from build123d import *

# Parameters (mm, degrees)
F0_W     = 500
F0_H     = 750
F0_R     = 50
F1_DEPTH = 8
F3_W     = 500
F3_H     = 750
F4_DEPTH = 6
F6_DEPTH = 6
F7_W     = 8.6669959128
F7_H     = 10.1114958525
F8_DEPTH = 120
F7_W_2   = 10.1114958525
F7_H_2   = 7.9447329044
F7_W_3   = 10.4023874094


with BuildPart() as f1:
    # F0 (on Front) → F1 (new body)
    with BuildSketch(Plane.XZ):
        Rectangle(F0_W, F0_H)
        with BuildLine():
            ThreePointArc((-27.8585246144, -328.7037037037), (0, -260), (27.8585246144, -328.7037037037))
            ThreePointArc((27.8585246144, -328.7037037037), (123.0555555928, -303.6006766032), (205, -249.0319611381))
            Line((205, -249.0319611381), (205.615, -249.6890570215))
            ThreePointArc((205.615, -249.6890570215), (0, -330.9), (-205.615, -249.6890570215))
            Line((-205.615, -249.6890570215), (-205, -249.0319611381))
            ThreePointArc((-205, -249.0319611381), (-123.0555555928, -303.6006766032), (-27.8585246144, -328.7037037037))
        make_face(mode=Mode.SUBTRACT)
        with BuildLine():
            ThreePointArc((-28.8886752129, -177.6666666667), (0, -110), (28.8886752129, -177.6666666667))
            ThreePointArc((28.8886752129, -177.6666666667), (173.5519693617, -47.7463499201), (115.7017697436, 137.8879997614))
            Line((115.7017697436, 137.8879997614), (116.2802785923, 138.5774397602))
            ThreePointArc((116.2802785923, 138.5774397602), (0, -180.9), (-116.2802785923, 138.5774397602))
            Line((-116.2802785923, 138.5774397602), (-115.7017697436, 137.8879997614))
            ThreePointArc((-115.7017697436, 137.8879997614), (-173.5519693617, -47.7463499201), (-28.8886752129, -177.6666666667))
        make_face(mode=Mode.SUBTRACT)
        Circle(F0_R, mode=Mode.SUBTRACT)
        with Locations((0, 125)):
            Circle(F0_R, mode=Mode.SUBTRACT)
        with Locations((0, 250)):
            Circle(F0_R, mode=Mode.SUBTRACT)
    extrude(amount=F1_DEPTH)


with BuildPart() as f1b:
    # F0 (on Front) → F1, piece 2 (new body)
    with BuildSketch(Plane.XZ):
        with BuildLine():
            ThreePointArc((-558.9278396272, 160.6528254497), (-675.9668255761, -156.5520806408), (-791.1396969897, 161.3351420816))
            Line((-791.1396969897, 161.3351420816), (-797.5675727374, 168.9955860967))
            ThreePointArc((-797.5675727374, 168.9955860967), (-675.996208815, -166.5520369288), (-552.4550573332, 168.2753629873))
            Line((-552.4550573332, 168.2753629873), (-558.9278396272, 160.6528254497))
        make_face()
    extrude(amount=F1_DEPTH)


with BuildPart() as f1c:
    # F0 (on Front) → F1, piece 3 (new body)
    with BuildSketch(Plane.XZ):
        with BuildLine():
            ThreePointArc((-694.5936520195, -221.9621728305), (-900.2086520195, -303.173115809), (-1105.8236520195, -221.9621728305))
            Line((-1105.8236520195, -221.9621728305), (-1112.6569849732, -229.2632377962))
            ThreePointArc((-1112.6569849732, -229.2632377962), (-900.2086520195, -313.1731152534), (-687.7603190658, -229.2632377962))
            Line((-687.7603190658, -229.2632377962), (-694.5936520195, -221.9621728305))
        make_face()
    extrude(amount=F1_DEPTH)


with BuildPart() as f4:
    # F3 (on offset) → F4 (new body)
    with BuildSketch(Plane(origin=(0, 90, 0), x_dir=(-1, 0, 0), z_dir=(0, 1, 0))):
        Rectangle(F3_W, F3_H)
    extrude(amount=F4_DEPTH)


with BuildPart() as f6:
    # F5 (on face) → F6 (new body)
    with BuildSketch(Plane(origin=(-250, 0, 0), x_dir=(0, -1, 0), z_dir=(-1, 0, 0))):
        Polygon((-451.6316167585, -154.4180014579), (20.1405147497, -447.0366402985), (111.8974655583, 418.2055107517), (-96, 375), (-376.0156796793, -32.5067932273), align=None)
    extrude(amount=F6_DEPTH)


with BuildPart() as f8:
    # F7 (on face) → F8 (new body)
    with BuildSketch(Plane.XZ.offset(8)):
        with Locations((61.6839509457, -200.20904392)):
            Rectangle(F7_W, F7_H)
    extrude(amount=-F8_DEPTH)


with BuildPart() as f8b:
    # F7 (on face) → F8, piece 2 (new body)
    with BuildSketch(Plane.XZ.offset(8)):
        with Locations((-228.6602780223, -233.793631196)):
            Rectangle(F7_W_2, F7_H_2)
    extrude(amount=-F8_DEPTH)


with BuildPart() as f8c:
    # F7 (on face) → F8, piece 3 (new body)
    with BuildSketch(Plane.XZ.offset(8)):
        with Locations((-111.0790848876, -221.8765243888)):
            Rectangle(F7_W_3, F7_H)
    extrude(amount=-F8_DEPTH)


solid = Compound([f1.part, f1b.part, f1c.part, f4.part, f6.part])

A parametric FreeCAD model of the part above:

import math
import FreeCAD as App
import Part
import Sketcher
Q = App.Units.Quantity


def add_polygon(sketch, points):
    """Adds a closed chain of lines whose ends are joined by coincident constraints."""
    first, n = sketch.GeometryCount, len(points)
    for a, b in zip(points, points[1:] + points[:1]):
        sketch.addGeometry(Part.LineSegment(App.Vector(*a, 0), App.Vector(*b, 0)), False)
    for i in range(n):
        sketch.addConstraint(Sketcher.Constraint("Coincident", first + i, 2, first + (i + 1) % n, 1))

doc = App.newDocument("Part")
params = doc.addObject("Spreadsheet::Sheet", "Params")
for row, (alias, value) in enumerate([
    ("sketch1_diameter", "100 mm"),
    ("sketch1_radius", "180 mm"),
    ("sketch1_radius2", "40 mm"),
    ("sketch1_radius3", "300 mm"),
    ("sketch1_radius4", "180.9 mm"),
    ("pad1_length", "8 mm"),
    ("sketch2_radius", "180 mm"),
    ("sketch2_radius2", "189.999999 mm"),
    ("pad2_length", "8 mm"),
    ("sketch3_radius", "300.9 mm"),
    ("sketch3_radius2", "310.899999 mm"),
    ("pad3_length", "8 mm"),
    ("sketch4_width", "500 mm"),
    ("sketch4_height", "750 mm"),
    ("pad4_length", "6 mm"),
    ("pad5_length", "6 mm"),
    ("pad6_length", "120 mm"),
    ("pad7_length", "120 mm"),
    ("pad8_length", "120 mm"),
], start=1):
    params.set(f"A{row}", alias)
    params.set(f"B{row}", "=" + value)
    params.setAlias(f"B{row}", alias)

body = doc.addObject("PartDesign::Body", "Body")

# Sketch on XZ plane
sketch1 = doc.addObject("Sketcher::SketchObject", "Sketch")
body.addObject(sketch1)
sketch1.AttachmentSupport = (doc.XZ_Plane, [""])
sketch1.MapMode = "FlatFace"
add_polygon(sketch1, [(-250, 375), (-250, -375), (250, -375), (250, 375)])  # lines 0-3
sketch1.addGeometry(Part.ArcOfCircle(Part.Circle(App.Vector(0, 0, 0), App.Vector(0, 0, 1), 180), math.radians(130), math.radians(260.764508)), False)  # 4
sketch1.addGeometry(Part.ArcOfCircle(Part.Circle(App.Vector(0, -150, 0), App.Vector(0, 0, 1), 40), math.radians(-43.762185), math.radians(223.762185)), False)  # 5
sketch1.addGeometry(Part.ArcOfCircle(Part.Circle(App.Vector(0, 0, 0), App.Vector(0, 0, 1), 180), math.radians(-80.764508), math.radians(50)), False)  # 6
sketch1.addGeometry(Part.LineSegment(App.Vector(115.70177, 137.888, 0), App.Vector(116.280279, 138.57744, 0)), False)  # 7
sketch1.addGeometry(Part.ArcOfCircle(Part.Circle(App.Vector(0, 0, 0), App.Vector(0, 0, 1), 180.9), math.radians(130), math.radians(410)), False)  # 8
sketch1.addGeometry(Part.LineSegment(App.Vector(-116.280279, 138.57744, 0), App.Vector(-115.70177, 137.888, 0)), False)  # 9
sketch1.addGeometry(Part.ArcOfCircle(Part.Circle(App.Vector(0, -30, 0), App.Vector(0, 0, 1), 300), math.radians(-133.104674), math.radians(-95.328263)), False)  # 10
sketch1.addGeometry(Part.ArcOfCircle(Part.Circle(App.Vector(0, -300, 0), App.Vector(0, 0, 1), 40), math.radians(-45.856076), math.radians(225.856076)), False)  # 11
sketch1.addGeometry(Part.ArcOfCircle(Part.Circle(App.Vector(0, -30, 0), App.Vector(0, 0, 1), 300), math.radians(-84.671737), math.radians(-46.895326)), False)  # 12
sketch1.addGeometry(Part.LineSegment(App.Vector(205, -249.031961, 0), App.Vector(205.615, -249.689057, 0)), False)  # 13
sketch1.addGeometry(Part.ArcOfCircle(Part.Circle(App.Vector(0, -30, 0), App.Vector(0, 0, 1), 300.9), math.radians(-133.104674), math.radians(-46.895326)), False)  # 14
sketch1.addGeometry(Part.LineSegment(App.Vector(-205.615, -249.689057, 0), App.Vector(-205, -249.031961, 0)), False)  # 15
sketch1.addGeometry(Part.Circle(App.Vector(0, 0, 0), App.Vector(0, 0, 1), 50), False)  # 16
sketch1.addGeometry(Part.Circle(App.Vector(0, 125, 0), App.Vector(0, 0, 1), 50), False)  # 17
sketch1.addGeometry(Part.Circle(App.Vector(0, 250, 0), App.Vector(0, 0, 1), 50), False)  # 18
sketch1.addConstraint(Sketcher.Constraint("Coincident", 4, 2, 5, 2))
sketch1.addConstraint(Sketcher.Constraint("Coincident", 5, 1, 6, 1))
sketch1.addConstraint(Sketcher.Constraint("Coincident", 6, 2, 7, 1))
sketch1.addConstraint(Sketcher.Constraint("Coincident", 7, 2, 8, 2))
sketch1.addConstraint(Sketcher.Constraint("Coincident", 8, 1, 9, 1))
sketch1.addConstraint(Sketcher.Constraint("Coincident", 9, 2, 4, 1))
sketch1.addConstraint(Sketcher.Constraint("Coincident", 10, 2, 11, 2))
sketch1.addConstraint(Sketcher.Constraint("Coincident", 11, 1, 12, 1))
sketch1.addConstraint(Sketcher.Constraint("Coincident", 12, 2, 13, 1))
sketch1.addConstraint(Sketcher.Constraint("Coincident", 13, 2, 14, 2))
sketch1.addConstraint(Sketcher.Constraint("Coincident", 14, 1, 15, 1))
sketch1.addConstraint(Sketcher.Constraint("Coincident", 15, 2, 10, 1))
sketch1.addConstraint(Sketcher.Constraint("Vertical", 0))
sketch1.addConstraint(Sketcher.Constraint("Horizontal", 1))
sketch1.addConstraint(Sketcher.Constraint("Vertical", 2))
sketch1.addConstraint(Sketcher.Constraint("Horizontal", 3))
sketch1.addConstraint(Sketcher.Constraint("Coincident", 4, 3, -1, 1))
sketch1.addConstraint(Sketcher.Constraint("Coincident", 6, 3, -1, 1))
sketch1.addConstraint(Sketcher.Constraint("Coincident", 8, 3, -1, 1))
sketch1.addConstraint(Sketcher.Constraint("Coincident", 16, 3, -1, 1))
sketch1.addConstraint(Sketcher.Constraint("Coincident", 12, 3, 10, 3))
sketch1.addConstraint(Sketcher.Constraint("Coincident", 14, 3, 10, 3))
sketch1.addConstraint(Sketcher.Constraint("Equal", 4, 6))
sketch1.addConstraint(Sketcher.Constraint("Equal", 5, 11))
sketch1.addConstraint(Sketcher.Constraint("Equal", 10, 12))
sketch1.addConstraint(Sketcher.Constraint("Equal", 16, 17))
sketch1.addConstraint(Sketcher.Constraint("Equal", 17, 18))
sketch1.addConstraint(Sketcher.Constraint("Symmetric", 0, 2, 2, 2, -1, 1))
sketch1.addConstraint(Sketcher.Constraint("Symmetric", 10, 2, 11, 1, -2))
sketch1.addConstraint(Sketcher.Constraint("PointOnObject", 5, 3, -2))
sketch1.addConstraint(Sketcher.Constraint("PointOnObject", 17, 3, -2))
sketch1.addConstraint(Sketcher.Constraint("PointOnObject", 18, 3, -2))
sketch1.addConstraint(Sketcher.Constraint("Horizontal", 7, 2, 8, 1))
sketch1.addConstraint(Sketcher.Constraint("Horizontal", 6, 2, 9, 2))
sketch1.addConstraint(Sketcher.Constraint("Horizontal", 13, 2, 14, 1))
sketch1.addConstraint(Sketcher.Constraint("Horizontal", 12, 2, 15, 2))
sketch1.addConstraint(Sketcher.Constraint("Equal", 9, 13))
sketch1.addConstraint(Sketcher.Constraint("Diameter", 16, 100.0))
sketch1.addConstraint(Sketcher.Constraint("Radius", 4, 180.0))
sketch1.addConstraint(Sketcher.Constraint("Radius", 5, 40.0))
sketch1.addConstraint(Sketcher.Constraint("Radius", 10, 300.0))
sketch1.addConstraint(Sketcher.Constraint("Radius", 8, 180.9))
sketch1.addConstraint(Sketcher.Constraint("DistanceX", 1, 1, 1, 2, 500.0))
sketch1.addConstraint(Sketcher.Constraint("DistanceY", 0, 2, 0, 1, 750.0))
sketch1.addConstraint(Sketcher.Constraint("Angle", 7, Q("50 deg")))
sketch1.addConstraint(Sketcher.Constraint("DistanceY", 5, 3, -1, 1, 150.0))
sketch1.addConstraint(Sketcher.Constraint("DistanceY", 10, 3, -1, 1, 30.0))
sketch1.addConstraint(Sketcher.Constraint("DistanceY", 11, 3, -1, 1, 300.0))
sketch1.addConstraint(Sketcher.Constraint("DistanceY", -1, 1, 17, 3, 125.0))
sketch1.addConstraint(Sketcher.Constraint("DistanceY", -1, 1, 18, 3, 250.0))
sketch1.addConstraint(Sketcher.Constraint("DistanceX", -1, 1, 12, 2, 205.0))
sketch1.addConstraint(Sketcher.Constraint("DistanceY", -1, 1, 6, 2, 137.888))
sketch1.addConstraint(Sketcher.Constraint("DistanceX", -1, 1, 13, 2, 205.615))
sketch1.setExpression("Constraints[41]", "Params.sketch1_diameter")
sketch1.setExpression("Constraints[42]", "Params.sketch1_radius")
sketch1.setExpression("Constraints[43]", "Params.sketch1_radius2")
sketch1.setExpression("Constraints[44]", "Params.sketch1_radius3")
sketch1.setExpression("Constraints[45]", "Params.sketch1_radius4")
pad1 = doc.addObject("PartDesign::Pad", "Pad")
body.addObject(pad1)
pad1.Profile = sketch1
pad1.setExpression("Length", "Params.pad1_length")
body2 = doc.addObject("PartDesign::Body", "Body001")

# Sketch on XZ plane
sketch2 = doc.addObject("Sketcher::SketchObject", "Sketch001")
body2.addObject(sketch2)
sketch2.AttachmentSupport = (doc.getObject("XZ_Plane001"), [""])
sketch2.MapMode = "FlatFace"
sketch2.addGeometry(Part.ArcOfCircle(Part.Circle(App.Vector(-675.437927, 23.447142, 0), App.Vector(0, 0, 1), 180), math.radians(130), math.radians(409.663292)), False)
sketch2.addGeometry(Part.LineSegment(App.Vector(-791.139697, 161.335142, 0), App.Vector(-797.567573, 168.995586, 0)), False)
sketch2.addGeometry(Part.ArcOfCircle(Part.Circle(App.Vector(-675.437927, 23.447142, 0), App.Vector(0, 0, 1), 189.999999), math.radians(130), math.radians(409.663292)), False)
sketch2.addGeometry(Part.LineSegment(App.Vector(-552.455057, 168.275363, 0), App.Vector(-558.92784, 160.652825, 0)), False)
sketch2.addConstraint(Sketcher.Constraint("Coincident", 0, 1, 1, 1))
sketch2.addConstraint(Sketcher.Constraint("Coincident", 1, 2, 2, 1))
sketch2.addConstraint(Sketcher.Constraint("Coincident", 2, 2, 3, 1))
sketch2.addConstraint(Sketcher.Constraint("Coincident", 3, 2, 0, 2))
sketch2.addConstraint(Sketcher.Constraint("Coincident", 2, 3, 0, 3))
sketch2.addConstraint(Sketcher.Constraint("Radius", 0, 180.0))
sketch2.addConstraint(Sketcher.Constraint("Radius", 2, 189.999999))
sketch2.addConstraint(Sketcher.Constraint("Angle", 1, Q("130 deg")))
sketch2.addConstraint(Sketcher.Constraint("DistanceY", 0, 3, 0, 1, 137.888))
sketch2.addConstraint(Sketcher.Constraint("DistanceX", 3, 2, -1, 1, 558.92784))
sketch2.addConstraint(Sketcher.Constraint("DistanceX", 0, 3, 2, 2, 122.98287))
sketch2.addConstraint(Sketcher.Constraint("DistanceY", 3, 2, 1, 2, 8.342761))
sketch2.addConstraint(Sketcher.Constraint("DistanceY", -1, 1, 0, 3, 23.447142))
sketch2.setExpression("Constraints[5]", "Params.sketch2_radius")
sketch2.setExpression("Constraints[6]", "Params.sketch2_radius2")
pad2 = doc.addObject("PartDesign::Pad", "Pad001")
body2.addObject(pad2)
pad2.Profile = sketch2
pad2.setExpression("Length", "Params.pad2_length")
body3 = doc.addObject("PartDesign::Body", "Body002")

# Sketch on XZ plane
sketch3 = doc.addObject("Sketcher::SketchObject", "Sketch002")
body3.addObject(sketch3)
sketch3.AttachmentSupport = (doc.getObject("XZ_Plane002"), [""])
sketch3.MapMode = "FlatFace"
sketch3.addGeometry(Part.ArcOfCircle(Part.Circle(App.Vector(-900.208652, -2.273116, 0), App.Vector(0, 0, 1), 300.9), math.radians(-133.104674), math.radians(-46.895326)), False)
sketch3.addGeometry(Part.LineSegment(App.Vector(-1105.823652, -221.962173, 0), App.Vector(-1112.656985, -229.263238, 0)), False)
sketch3.addGeometry(Part.ArcOfCircle(Part.Circle(App.Vector(-900.208652, -2.273116, 0), App.Vector(0, 0, 1), 310.899999), math.radians(-133.104674), math.radians(-46.895326)), False)
sketch3.addGeometry(Part.LineSegment(App.Vector(-687.760319, -229.263238, 0), App.Vector(-694.593652, -221.962173, 0)), False)
sketch3.addConstraint(Sketcher.Constraint("Coincident", 0, 1, 1, 1))
sketch3.addConstraint(Sketcher.Constraint("Coincident", 1, 2, 2, 1))
sketch3.addConstraint(Sketcher.Constraint("Coincident", 2, 2, 3, 1))
sketch3.addConstraint(Sketcher.Constraint("Coincident", 3, 2, 0, 2))
sketch3.addConstraint(Sketcher.Constraint("Coincident", 2, 3, 0, 3))
sketch3.addConstraint(Sketcher.Constraint("Horizontal", 1, 2, 2, 2))
sketch3.addConstraint(Sketcher.Constraint("Horizontal", 0, 1, 3, 2))
sketch3.addConstraint(Sketcher.Constraint("Radius", 0, 300.9))
sketch3.addConstraint(Sketcher.Constraint("Radius", 2, 310.899999))
sketch3.addConstraint(Sketcher.Constraint("DistanceX", 0, 1, 3, 2, 411.23))
sketch3.addConstraint(Sketcher.Constraint("DistanceX", 2, 2, -1, 1, 687.760319))
sketch3.addConstraint(Sketcher.Constraint("DistanceY", 1, 2, 0, 3, 226.990122))
sketch3.addConstraint(Sketcher.Constraint("DistanceY", 0, 3, -1, 1, 2.273116))
sketch3.setExpression("Constraints[7]", "Params.sketch3_radius")
sketch3.setExpression("Constraints[8]", "Params.sketch3_radius2")
pad3 = doc.addObject("PartDesign::Pad", "Pad002")
body3.addObject(pad3)
pad3.Profile = sketch3
pad3.setExpression("Length", "Params.pad3_length")
body4 = doc.addObject("PartDesign::Body", "Body003")

# Sketch on XZ plane
sketch4 = doc.addObject("Sketcher::SketchObject", "Sketch003")
body4.addObject(sketch4)
sketch4.AttachmentSupport = (doc.getObject("XZ_Plane003"), [""])
sketch4.MapMode = "FlatFace"
sketch4.AttachmentOffset = App.Placement(App.Vector(0, 0, -90), App.Rotation())
add_polygon(sketch4, [(250, 375), (250, -375), (-250, -375), (-250, 375)])  # lines 0-3
sketch4.addConstraint(Sketcher.Constraint("Vertical", 0))
sketch4.addConstraint(Sketcher.Constraint("Horizontal", 1))
sketch4.addConstraint(Sketcher.Constraint("Vertical", 2))
sketch4.addConstraint(Sketcher.Constraint("Horizontal", 3))
sketch4.addConstraint(Sketcher.Constraint("Symmetric", 0, 2, 2, 2, -1, 1))
sketch4.addConstraint(Sketcher.Constraint("DistanceX", 1, 2, 1, 1, 500.0))
sketch4.addConstraint(Sketcher.Constraint("DistanceY", 0, 2, 0, 1, 750.0))
sketch4.setExpression("Constraints[9]", "Params.sketch4_width")
sketch4.setExpression("Constraints[10]", "Params.sketch4_height")
pad4 = doc.addObject("PartDesign::Pad", "Pad003")
body4.addObject(pad4)
pad4.Profile = sketch4
pad4.setExpression("Length", "Params.pad4_length")
pad4.Reversed = True
body5 = doc.addObject("PartDesign::Body", "Body004")

# Sketch on YZ plane
sketch5 = doc.addObject("Sketcher::SketchObject", "Sketch004")
body5.addObject(sketch5)
sketch5.AttachmentSupport = (doc.getObject("YZ_Plane004"), [""])
sketch5.MapMode = "FlatFace"
sketch5.AttachmentOffset = App.Placement(App.Vector(0, 0, -250), App.Rotation())
add_polygon(sketch5, [(451.631617, -154.418001), (-20.140515, -447.03664), (-111.897466, 418.205511), (96, 375), (376.01568, -32.506793)])  # lines 0-4
sketch5.addConstraint(Sketcher.Constraint("Perpendicular", 0, 4))
sketch5.addConstraint(Sketcher.Constraint("DistanceX", -1, 1, 2, 2, 96.0))
sketch5.addConstraint(Sketcher.Constraint("DistanceY", -1, 1, 2, 2, 375.0))
sketch5.addConstraint(Sketcher.Constraint("DistanceY", 4, 2, -1, 1, 154.418001))
sketch5.addConstraint(Sketcher.Constraint("Distance", 2, 212.339521))
sketch5.addConstraint(Sketcher.Constraint("Distance", 3, 494.43965))
sketch5.addConstraint(Sketcher.Constraint("DistanceY", 0, 2, -1, 1, 447.03664))
sketch5.addConstraint(Sketcher.Constraint("DistanceY", -1, 1, 1, 2, 418.205511))
sketch5.addConstraint(Sketcher.Constraint("DistanceX", -1, 1, 3, 2, 376.01568))
sketch5.addConstraint(Sketcher.Constraint("DistanceX", 1, 2, 0, 2, 91.756951))
pad5 = doc.addObject("PartDesign::Pad", "Pad004")
body5.addObject(pad5)
pad5.Profile = sketch5
pad5.setExpression("Length", "Params.pad5_length")
pad5.Reversed = True
body6 = doc.addObject("PartDesign::Body", "Body005")

# Sketch on XZ plane
sketch6 = doc.addObject("Sketcher::SketchObject", "Sketch005")
body6.addObject(sketch6)
sketch6.AttachmentSupport = (doc.getObject("XZ_Plane005"), [""])
sketch6.MapMode = "FlatFace"
sketch6.AttachmentOffset = App.Placement(App.Vector(0, 0, 8), App.Rotation())
add_polygon(sketch6, [(57.350453, -195.153296), (57.350453, -205.264792), (66.017449, -205.264792), (66.017449, -195.153296)])  # lines 0-3
sketch6.addConstraint(Sketcher.Constraint("Vertical", 0))
sketch6.addConstraint(Sketcher.Constraint("Horizontal", 1))
sketch6.addConstraint(Sketcher.Constraint("Vertical", 2))
sketch6.addConstraint(Sketcher.Constraint("Horizontal", 3))
sketch6.addConstraint(Sketcher.Constraint("DistanceX", 1, 1, 1, 2, 8.666996))
sketch6.addConstraint(Sketcher.Constraint("DistanceY", 0, 2, 0, 1, 10.111496))
sketch6.addConstraint(Sketcher.Constraint("DistanceY", 0, 2, -1, 1, 205.264792))
sketch6.addConstraint(Sketcher.Constraint("DistanceX", -1, 1, 1, 2, 66.017449))
pad6 = doc.addObject("PartDesign::Pad", "Pad005")
body6.addObject(pad6)
pad6.Profile = sketch6
pad6.setExpression("Length", "Params.pad6_length")
pad6.Reversed = True
body7 = doc.addObject("PartDesign::Body", "Body006")

# Sketch on XZ plane
sketch7 = doc.addObject("Sketcher::SketchObject", "Sketch006")
body7.addObject(sketch7)
sketch7.AttachmentSupport = (doc.getObject("XZ_Plane006"), [""])
sketch7.MapMode = "FlatFace"
sketch7.AttachmentOffset = App.Placement(App.Vector(0, 0, 8), App.Rotation())
add_polygon(sketch7, [(-233.716026, -229.821265), (-233.716026, -237.765998), (-223.60453, -237.765998), (-223.60453, -229.821265)])  # lines 0-3
sketch7.addConstraint(Sketcher.Constraint("Vertical", 0))
sketch7.addConstraint(Sketcher.Constraint("Horizontal", 1))
sketch7.addConstraint(Sketcher.Constraint("Vertical", 2))
sketch7.addConstraint(Sketcher.Constraint("Horizontal", 3))
sketch7.addConstraint(Sketcher.Constraint("DistanceX", 1, 1, 1, 2, 10.111496))
sketch7.addConstraint(Sketcher.Constraint("DistanceY", 0, 2, 0, 1, 7.944733))
sketch7.addConstraint(Sketcher.Constraint("DistanceX", 1, 2, -1, 1, 223.60453))
sketch7.addConstraint(Sketcher.Constraint("DistanceY", 0, 2, -1, 1, 237.765998))
pad7 = doc.addObject("PartDesign::Pad", "Pad006")
body7.addObject(pad7)
pad7.Profile = sketch7
pad7.setExpression("Length", "Params.pad7_length")
pad7.Reversed = True
body8 = doc.addObject("PartDesign::Body", "Body007")

# Sketch on XZ plane
sketch8 = doc.addObject("Sketcher::SketchObject", "Sketch007")
body8.addObject(sketch8)
sketch8.AttachmentSupport = (doc.getObject("XZ_Plane007"), [""])
sketch8.MapMode = "FlatFace"
sketch8.AttachmentOffset = App.Placement(App.Vector(0, 0, 8), App.Rotation())
add_polygon(sketch8, [(-116.280279, -216.820776), (-116.280279, -226.932272), (-105.877891, -226.932272), (-105.877891, -216.820776)])  # lines 0-3
sketch8.addConstraint(Sketcher.Constraint("Vertical", 0))
sketch8.addConstraint(Sketcher.Constraint("Horizontal", 1))
sketch8.addConstraint(Sketcher.Constraint("Vertical", 2))
sketch8.addConstraint(Sketcher.Constraint("Horizontal", 3))
sketch8.addConstraint(Sketcher.Constraint("DistanceX", 1, 1, 1, 2, 10.402387))
sketch8.addConstraint(Sketcher.Constraint("DistanceY", 0, 2, 0, 1, 10.111496))
sketch8.addConstraint(Sketcher.Constraint("DistanceX", 0, 2, -1, 1, 116.280279))
sketch8.addConstraint(Sketcher.Constraint("DistanceY", 0, 2, -1, 1, 226.932272))
pad8 = doc.addObject("PartDesign::Pad", "Pad007")
body8.addObject(pad8)
pad8.Profile = sketch8
pad8.setExpression("Length", "Params.pad8_length")
pad8.Reversed = True
body6.Visibility = False
body7.Visibility = False
body8.Visibility = False

doc.recompute()
